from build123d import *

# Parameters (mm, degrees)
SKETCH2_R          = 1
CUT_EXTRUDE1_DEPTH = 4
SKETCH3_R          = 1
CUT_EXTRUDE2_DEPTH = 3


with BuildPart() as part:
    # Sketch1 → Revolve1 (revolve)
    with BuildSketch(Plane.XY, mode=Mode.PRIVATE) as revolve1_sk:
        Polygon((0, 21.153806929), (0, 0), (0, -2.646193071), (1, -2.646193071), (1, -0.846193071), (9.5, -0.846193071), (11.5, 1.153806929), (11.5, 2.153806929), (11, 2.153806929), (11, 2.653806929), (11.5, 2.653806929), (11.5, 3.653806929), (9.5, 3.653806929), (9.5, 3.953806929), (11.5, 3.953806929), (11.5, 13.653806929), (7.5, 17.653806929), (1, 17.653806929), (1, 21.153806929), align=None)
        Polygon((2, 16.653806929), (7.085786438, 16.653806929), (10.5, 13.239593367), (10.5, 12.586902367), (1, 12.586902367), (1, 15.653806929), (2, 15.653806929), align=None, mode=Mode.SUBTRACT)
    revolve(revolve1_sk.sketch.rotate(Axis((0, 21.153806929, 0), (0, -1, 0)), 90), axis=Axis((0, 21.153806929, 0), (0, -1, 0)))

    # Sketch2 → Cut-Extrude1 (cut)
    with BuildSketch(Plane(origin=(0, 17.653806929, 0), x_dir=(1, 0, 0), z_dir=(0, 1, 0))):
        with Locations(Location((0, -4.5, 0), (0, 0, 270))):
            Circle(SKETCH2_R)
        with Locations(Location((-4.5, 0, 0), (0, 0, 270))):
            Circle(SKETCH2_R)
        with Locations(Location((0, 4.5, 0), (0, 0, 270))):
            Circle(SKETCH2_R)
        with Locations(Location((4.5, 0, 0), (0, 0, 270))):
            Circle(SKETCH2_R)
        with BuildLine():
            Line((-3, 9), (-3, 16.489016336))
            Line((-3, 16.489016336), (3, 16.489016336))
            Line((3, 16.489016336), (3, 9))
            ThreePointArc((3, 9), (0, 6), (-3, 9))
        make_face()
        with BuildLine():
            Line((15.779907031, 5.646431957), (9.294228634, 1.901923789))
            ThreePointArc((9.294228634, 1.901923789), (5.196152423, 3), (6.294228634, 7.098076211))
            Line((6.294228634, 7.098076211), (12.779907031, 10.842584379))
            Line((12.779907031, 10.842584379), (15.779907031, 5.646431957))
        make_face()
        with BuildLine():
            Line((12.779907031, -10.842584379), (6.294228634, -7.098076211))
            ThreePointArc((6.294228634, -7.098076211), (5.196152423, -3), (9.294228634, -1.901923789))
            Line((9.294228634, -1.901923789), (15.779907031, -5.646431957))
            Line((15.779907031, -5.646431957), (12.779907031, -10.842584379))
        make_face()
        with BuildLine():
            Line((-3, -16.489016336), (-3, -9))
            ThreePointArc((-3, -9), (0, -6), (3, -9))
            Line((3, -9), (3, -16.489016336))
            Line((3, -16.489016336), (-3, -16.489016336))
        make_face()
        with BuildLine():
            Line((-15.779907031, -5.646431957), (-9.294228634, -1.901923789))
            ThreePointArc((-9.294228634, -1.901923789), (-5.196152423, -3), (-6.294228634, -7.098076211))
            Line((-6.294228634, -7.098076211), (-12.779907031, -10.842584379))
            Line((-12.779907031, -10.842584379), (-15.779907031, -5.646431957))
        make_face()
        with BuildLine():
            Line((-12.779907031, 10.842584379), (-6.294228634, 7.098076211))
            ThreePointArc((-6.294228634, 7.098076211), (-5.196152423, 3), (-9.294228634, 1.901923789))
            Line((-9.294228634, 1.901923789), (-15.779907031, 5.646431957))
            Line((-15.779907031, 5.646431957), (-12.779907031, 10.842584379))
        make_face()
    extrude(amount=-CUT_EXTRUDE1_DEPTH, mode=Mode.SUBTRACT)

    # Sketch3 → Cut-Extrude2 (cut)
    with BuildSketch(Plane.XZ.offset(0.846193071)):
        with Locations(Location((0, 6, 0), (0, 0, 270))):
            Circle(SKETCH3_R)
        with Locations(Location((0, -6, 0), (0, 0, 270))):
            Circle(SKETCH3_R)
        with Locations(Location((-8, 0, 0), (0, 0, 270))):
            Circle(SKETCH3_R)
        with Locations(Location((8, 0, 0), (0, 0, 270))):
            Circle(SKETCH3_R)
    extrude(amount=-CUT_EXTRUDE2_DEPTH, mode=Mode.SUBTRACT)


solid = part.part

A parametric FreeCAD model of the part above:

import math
import FreeCAD as App
import Part
import Sketcher
Q = App.Units.Quantity

doc = App.newDocument("Part")
body = doc.addObject("PartDesign::Body", "Body")

# Sketch on XY plane
sketch1 = body.newObject("Sketcher::SketchObject", "Sketch")
sketch1.AttachmentSupport = (doc.getObject("XY_Plane"), [""])
sketch1.MapMode = "FlatFace"
sketch1.addGeometry([
    Part.LineSegment(App.Vector(0, 21.153807, 0), App.Vector(0, -2.646193, 0)),  # 0
    Part.LineSegment(App.Vector(0, -2.646193, 0), App.Vector(1, -2.646193, 0)),  # 1
    Part.LineSegment(App.Vector(1, -2.646193, 0), App.Vector(1, -0.846193, 0)),  # 2
    Part.LineSegment(App.Vector(1, -0.846193, 0), App.Vector(9.5, -0.846193, 0)),  # 3
    Part.LineSegment(App.Vector(9.5, -0.846193, 0), App.Vector(11.5, 1.153807, 0)),  # 4
    Part.LineSegment(App.Vector(11.5, 1.153807, 0), App.Vector(11.5, 2.153807, 0)),  # 5
    Part.LineSegment(App.Vector(11.5, 2.153807, 0), App.Vector(11, 2.153807, 0)),  # 6
    Part.LineSegment(App.Vector(11, 2.153807, 0), App.Vector(11, 2.653807, 0)),  # 7
    Part.LineSegment(App.Vector(11, 2.653807, 0), App.Vector(11.5, 2.653807, 0)),  # 8
    Part.LineSegment(App.Vector(11.5, 2.653807, 0), App.Vector(11.5, 3.653807, 0)),  # 9
    Part.LineSegment(App.Vector(11.5, 3.653807, 0), App.Vector(9.5, 3.653807, 0)),  # 10
    Part.LineSegment(App.Vector(9.5, 3.653807, 0), App.Vector(9.5, 3.953807, 0)),  # 11
    Part.LineSegment(App.Vector(9.5, 3.953807, 0), App.Vector(11.5, 3.953807, 0)),  # 12
    Part.LineSegment(App.Vector(11.5, 3.953807, 0), App.Vector(11.5, 13.653807, 0)),  # 13
    Part.LineSegment(App.Vector(11.5, 13.653807, 0), App.Vector(7.5, 17.653807, 0)),  # 14
    Part.LineSegment(App.Vector(7.5, 17.653807, 0), App.Vector(1, 17.653807, 0)),  # 15
    Part.LineSegment(App.Vector(1, 17.653807, 0), App.Vector(1, 21.153807, 0)),  # 16
    Part.LineSegment(App.Vector(1, 21.153807, 0), App.Vector(0, 21.153807, 0)),  # 17
    Part.LineSegment(App.Vector(2, 15.653807, 0), App.Vector(2, 16.653807, 0)),  # 18
    Part.LineSegment(App.Vector(2, 16.653807, 0), App.Vector(7.085786, 16.653807, 0)),  # 19
    Part.LineSegment(App.Vector(7.085786, 16.653807, 0), App.Vector(10.5, 13.239593, 0)),  # 20
    Part.LineSegment(App.Vector(10.5, 13.239593, 0), App.Vector(10.5, 12.586902, 0)),  # 21
    Part.LineSegment(App.Vector(10.5, 12.586902, 0), App.Vector(1, 12.586902, 0)),  # 22
    Part.LineSegment(App.Vector(1, 12.586902, 0), App.Vector(1, 15.653807, 0)),  # 23
    Part.LineSegment(App.Vector(1, 15.653807, 0), App.Vector(2, 15.653807, 0)),  # 24
], False)
sketch1.addConstraint([
    Sketcher.Constraint("Coincident", 0, 2, 1, 1),
    Sketcher.Constraint("Coincident", 1, 2, 2, 1),
    Sketcher.Constraint("Coincident", 2, 2, 3, 1),
    Sketcher.Constraint("Coincident", 3, 2, 4, 1),
    Sketcher.Constraint("Coincident", 4, 2, 5, 1),
    Sketcher.Constraint("Coincident", 5, 2, 6, 1),
    Sketcher.Constraint("Coincident", 6, 2, 7, 1),
    Sketcher.Constraint("Coincident", 7, 2, 8, 1),
    Sketcher.Constraint("Coincident", 8, 2, 9, 1),
    Sketcher.Constraint("Coincident", 9, 2, 10, 1),
    Sketcher.Constraint("Coincident", 10, 2, 11, 1),
    Sketcher.Constraint("Coincident", 11, 2, 12, 1),
    Sketcher.Constraint("Coincident", 12, 2, 13, 1),
    Sketcher.Constraint("Coincident", 13, 2, 14, 1),
    Sketcher.Constraint("Coincident", 14, 2, 15, 1),
    Sketcher.Constraint("Coincident", 15, 2, 16, 1),
    Sketcher.Constraint("Coincident", 16, 2, 17, 1),
    Sketcher.Constraint("Coincident", 17, 2, 0, 1),
    Sketcher.Constraint("Coincident", 18, 2, 19, 1),
    Sketcher.Constraint("Coincident", 19, 2, 20, 1),
    Sketcher.Constraint("Coincident", 20, 2, 21, 1),
    Sketcher.Constraint("Coincident", 21, 2, 22, 1),
    Sketcher.Constraint("Coincident", 22, 2, 23, 1),
    Sketcher.Constraint("Coincident", 23, 2, 24, 1),
    Sketcher.Constraint("Coincident", 24, 2, 18, 1),
    Sketcher.Constraint("Vertical", 0),
    Sketcher.Constraint("Horizontal", 1),
    Sketcher.Constraint("Vertical", 2),
    Sketcher.Constraint("Horizontal", 3),
    Sketcher.Constraint("Vertical", 5),
    Sketcher.Constraint("Horizontal", 6),
    Sketcher.Constraint("Vertical", 7),
    Sketcher.Constraint("Horizontal", 8),
    Sketcher.Constraint("Vertical", 9),
    Sketcher.Constraint("Horizontal", 10),
    Sketcher.Constraint("Vertical", 11),
    Sketcher.Constraint("Horizontal", 12),
    Sketcher.Constraint("Vertical", 13),
    Sketcher.Constraint("Horizontal", 15),
    Sketcher.Constraint("Vertical", 16),
    Sketcher.Constraint("Horizontal", 17),
    Sketcher.Constraint("Vertical", 18),
    Sketcher.Constraint("Horizontal", 19),
    Sketcher.Constraint("Vertical", 21),
    Sketcher.Constraint("Horizontal", 22),
    Sketcher.Constraint("Vertical", 23),
    Sketcher.Constraint("Horizontal", 24),
    Sketcher.Constraint("PointOnObject", 0, 2, -2),
    Sketcher.Constraint("Perpendicular", 4, 14),
    Sketcher.Constraint("Parallel", 14, 20),
    Sketcher.Constraint("Vertical", 5, 2, 8, 2),
    Sketcher.Constraint("Vertical", 3, 2, 10, 2),
    Sketcher.Constraint("Vertical", 9, 2, 12, 2),
    Sketcher.Constraint("Vertical", 2, 2, 15, 2),
    Sketcher.Constraint("Vertical", 16, 2, 22, 2),
    Sketcher.Constraint("Equal", 17, 24),
    Sketcher.Constraint("Equal", 24, 5),
    Sketcher.Constraint("Equal", 8, 7),
    Sketcher.Constraint("Equal", 5, 9),
    Sketcher.Constraint("Equal", 9, 18),
    Sketcher.Constraint("DistanceX", 1, 1, 1, 2, 1.0),
    Sketcher.Constraint("DistanceX", 10, 2, 10, 1, 2.0),
    Sketcher.Constraint("Angle", 4, Q("45 deg")),
    Sketcher.Constraint("DistanceX", 3, 1, 3, 2, 8.5),
    Sketcher.Constraint("DistanceX", 6, 2, 6, 1, 0.5),
    Sketcher.Constraint("DistanceX", 15, 2, 15, 1, 6.5),
    Sketcher.Constraint("DistanceX", 22, 2, 22, 1, 9.5),
    Sketcher.Constraint("DistanceY", 0, 2, 0, 1, 23.8),
    Sketcher.Constraint("DistanceY", 2, 1, 2, 2, 1.8),
    Sketcher.Constraint("DistanceY", 11, 1, 11, 2, 0.3),
    Sketcher.Constraint("DistanceY", 13, 1, 13, 2, 9.7),
    Sketcher.Constraint("DistanceY", 18, 2, 15, 2, 1.0),
    Sketcher.Constraint("DistanceY", 21, 2, 21, 1, 0.652691),
    Sketcher.Constraint("DistanceX", 19, 1, 19, 2, 5.085786),
    Sketcher.Constraint("DistanceY", 0, 2, -1, 1, 2.646193),
])
revolution = body.newObject("PartDesign::Revolution", "Revolution")
revolution.Profile = sketch1
revolution.ReferenceAxis = (sketch1, ["V_Axis"])
revolution.Angle = 360

# Sketch on XZ plane
sketch2 = body.newObject("Sketcher::SketchObject", "Sketch001")
sketch2.AttachmentSupport = (doc.getObject("XZ_Plane"), [""])
sketch2.MapMode = "FlatFace"
sketch2.AttachmentOffset = App.Placement(App.Vector(0, 0, -17.653807), App.Rotation())
sketch2.addGeometry([
    Part.Circle(App.Vector(0, 4.5, 0), App.Vector(0, 0, 1), 1),  # 0
    Part.Circle(App.Vector(-4.5, 0, 0), App.Vector(0, 0, 1), 1),  # 1
    Part.Circle(App.Vector(0, -4.5, 0), App.Vector(0, 0, 1), 1),  # 2
    Part.Circle(App.Vector(4.5, 0, 0), App.Vector(0, 0, 1), 1),  # 3
    Part.LineSegment(App.Vector(-3, -16.489016, 0), App.Vector(-3, -9, 0)),  # 4
    Part.ArcOfCircle(Part.Circle(App.Vector(0, -9, 0), App.Vector(0, 0, 1), 3), math.radians(0), math.radians(180)),  # 5
    Part.LineSegment(App.Vector(3, -9, 0), App.Vector(3, -16.489016, 0)),  # 6
    Part.LineSegment(App.Vector(3, -16.489016, 0), App.Vector(-3, -16.489016, 0)),  # 7
    Part.LineSegment(App.Vector(9.294229, -1.901924, 0), App.Vector(15.779907, -5.646432, 0)),  # 8
    Part.LineSegment(App.Vector(15.779907, -5.646432, 0), App.Vector(12.779907, -10.842584, 0)),  # 9
    Part.LineSegment(App.Vector(12.779907, -10.842584, 0), App.Vector(6.294229, -7.098076, 0)),  # 10
    Part.ArcOfCircle(Part.Circle(App.Vector(7.794229, -4.5, 0), App.Vector(0, 0, 1), 3), math.radians(60), math.radians(240)),  # 11
    Part.LineSegment(App.Vector(6.294229, 7.098076, 0), App.Vector(12.779907, 10.842584, 0)),  # 12
    Part.LineSegment(App.Vector(12.779907, 10.842584, 0), App.Vector(15.779907, 5.646432, 0)),  # 13
    Part.LineSegment(App.Vector(15.779907, 5.646432, 0), App.Vector(9.294229, 1.901924, 0)),  # 14
    Part.ArcOfCircle(Part.Circle(App.Vector(7.794229, 4.5, 0), App.Vector(0, 0, 1), 3), math.radians(120), math.radians(300)),  # 15
    Part.LineSegment(App.Vector(-3, 9, 0), App.Vector(-3, 16.489016, 0)),  # 16
    Part.LineSegment(App.Vector(-3, 16.489016, 0), App.Vector(3, 16.489016, 0)),  # 17
    Part.LineSegment(App.Vector(3, 16.489016, 0), App.Vector(3, 9, 0)),  # 18
    Part.ArcOfCircle(Part.Circle(App.Vector(0, 9, 0), App.Vector(0, 0, 1), 3), math.radians(180), math.radians(360)),  # 19
    Part.LineSegment(App.Vector(-9.294229, 1.901924, 0), App.Vector(-15.779907, 5.646432, 0)),  # 20
    Part.LineSegment(App.Vector(-15.779907, 5.646432, 0), App.Vector(-12.779907, 10.842584, 0)),  # 21
    Part.LineSegment(App.Vector(-12.779907, 10.842584, 0), App.Vector(-6.294229, 7.098076, 0)),  # 22
    Part.ArcOfCircle(Part.Circle(App.Vector(-7.794229, 4.5, 0), App.Vector(0, 0, 1), 3), math.radians(-120), math.radians(60)),  # 23
    Part.LineSegment(App.Vector(-6.294229, -7.098076, 0), App.Vector(-12.779907, -10.842584, 0)),  # 24
    Part.LineSegment(App.Vector(-12.779907, -10.842584, 0), App.Vector(-15.779907, -5.646432, 0)),  # 25
    Part.LineSegment(App.Vector(-15.779907, -5.646432, 0), App.Vector(-9.294229, -1.901924, 0)),  # 26
    Part.ArcOfCircle(Part.Circle(App.Vector(-7.794229, -4.5, 0), App.Vector(0, 0, 1), 3), math.radians(-60), math.radians(120)),  # 27
], False)
sketch2.addConstraint([
    Sketcher.Constraint("Tangent", 4, 2, 5, 2),
    Sketcher.Constraint("Tangent", 5, 1, 6, 1),
    Sketcher.Constraint("Coincident", 6, 2, 7, 1),
    Sketcher.Constraint("Coincident", 7, 2, 4, 1),
    Sketcher.Constraint("Coincident", 8, 2, 9, 1),
    Sketcher.Constraint("Coincident", 9, 2, 10, 1),
    Sketcher.Constraint("Tangent", 10, 2, 11, 2),
    Sketcher.Constraint("Tangent", 11, 1, 8, 1),
    Sketcher.Constraint("Coincident", 12, 2, 13, 1),
    Sketcher.Constraint("Coincident", 13, 2, 14, 1),
    Sketcher.Constraint("Tangent", 14, 2, 15, 2),
    Sketcher.Constraint("Tangent", 15, 1, 12, 1),
    Sketcher.Constraint("Coincident", 16, 2, 17, 1),
    Sketcher.Constraint("Coincident", 17, 2, 18, 1),
    Sketcher.Constraint("Tangent", 18, 2, 19, 2),
    Sketcher.Constraint("Tangent", 19, 1, 16, 1),
    Sketcher.Constraint("Coincident", 20, 2, 21, 1),
    Sketcher.Constraint("Coincident", 21, 2, 22, 1),
    Sketcher.Constraint("Tangent", 22, 2, 23, 2),
    Sketcher.Constraint("Tangent", 23, 1, 20, 1),
    Sketcher.Constraint("Coincident", 24, 2, 25, 1),
    Sketcher.Constraint("Coincident", 25, 2, 26, 1),
    Sketcher.Constraint("Tangent", 26, 2, 27, 2),
    Sketcher.Constraint("Tangent", 27, 1, 24, 1),
    Sketcher.Constraint("Vertical", 4),
    Sketcher.Constraint("Vertical", 6),
    Sketcher.Constraint("Horizontal", 7),
    Sketcher.Constraint("Vertical", 16),
    Sketcher.Constraint("Horizontal", 17),
    Sketcher.Constraint("Vertical", 18),
    Sketcher.Constraint("Equal", 0, 1),
    Sketcher.Constraint("Equal", 1, 2),
    Sketcher.Constraint("Equal", 2, 3),
    Sketcher.Constraint("Equal", 5, 11),
    Sketcher.Constraint("Equal", 11, 15),
    Sketcher.Constraint("Equal", 15, 19),
    Sketcher.Constraint("Equal", 19, 23),
    Sketcher.Constraint("Equal", 23, 27),
    Sketcher.Constraint("Symmetric", 0, 3, 2, 3, -1, 1),
    Sketcher.Constraint("Symmetric", 1, 3, 3, 3, -1, 1),
    Sketcher.Constraint("Symmetric", 5, 3, 19, 3, -1, 1),
    Sketcher.Constraint("Symmetric", 11, 3, 23, 3, -1, 1),
    Sketcher.Constraint("Symmetric", 15, 3, 27, 3, -1, 1),
    Sketcher.Constraint("Symmetric", 8, 2, 20, 2, -1, 1),
    Sketcher.Constraint("Symmetric", 9, 2, 21, 2, -1, 1),
    Sketcher.Constraint("Symmetric", 12, 2, 24, 2, -1, 1),
    Sketcher.Constraint("Symmetric", 13, 2, 25, 2, -1, 1),
    Sketcher.Constraint("Symmetric", 15, 3, 23, 3, -2),
    Sketcher.Constraint("Symmetric", 13, 2, 20, 2, -2),
    Sketcher.Constraint("Symmetric", 12, 2, 21, 2, -2),
    Sketcher.Constraint("Symmetric", 7, 2, 16, 2, -1),
    Sketcher.Constraint("PointOnObject", 0, 3, -2),
    Sketcher.Constraint("PointOnObject", 1, 3, -1),
    Sketcher.Constraint("Perpendicular", 8, 9),
    Sketcher.Constraint("Perpendicular", 9, 10),
    Sketcher.Constraint("Horizontal", 2, 3, 11, 3),
    Sketcher.Constraint("Diameter", 0, 2.0),
    Sketcher.Constraint("Radius", 5, 3.0),
    Sketcher.Constraint("Angle", 8, Q("-30 deg")),
    Sketcher.Constraint("DistanceY", 5, 3, -1, 1, 9.0),
    Sketcher.Constraint("DistanceY", 2, 3, 0, 3, 9.0),
    Sketcher.Constraint("DistanceX", 1, 3, 3, 3, 9.0),
    Sketcher.Constraint("DistanceY", 4, 1, 4, 2, 7.489016),
    Sketcher.Constraint("DistanceX", -1, 1, 11, 3, 7.794229),
    Sketcher.Constraint("DistanceY", 8, 2, -1, 1, 5.646432),
])
pocket1 = body.newObject("PartDesign::Pocket", "Pocket")
pocket1.Profile = sketch2
pocket1.Length = 4
pocket1.Reversed = True

# Sketch on XZ plane
sketch3 = body.newObject("Sketcher::SketchObject", "Sketch002")
sketch3.AttachmentSupport = (doc.getObject("XZ_Plane"), [""])
sketch3.MapMode = "FlatFace"
sketch3.AttachmentOffset = App.Placement(App.Vector(0, 0, 0.846193), App.Rotation())
sketch3.addGeometry([
    Part.Circle(App.Vector(0, 6, 0), App.Vector(0, 0, 1), 1),
    Part.Circle(App.Vector(0, -6, 0), App.Vector(0, 0, 1), 1),
    Part.Circle(App.Vector(-8, 0, 0), App.Vector(0, 0, 1), 1),
    Part.Circle(App.Vector(8, 0, 0), App.Vector(0, 0, 1), 1),
], False)
sketch3.addConstraint([
    Sketcher.Constraint("Equal", 0, 1),
    Sketcher.Constraint("Equal", 1, 2),
    Sketcher.Constraint("Equal", 2, 3),
    Sketcher.Constraint("Symmetric", 0, 3, 1, 3, -1, 1),
    Sketcher.Constraint("Symmetric", 2, 3, 3, 3, -1, 1),
    Sketcher.Constraint("PointOnObject", 0, 3, -2),
    Sketcher.Constraint("PointOnObject", 2, 3, -1),
    Sketcher.Constraint("Diameter", 0, 2.0),
    Sketcher.Constraint("DistanceY", -1, 1, 0, 3, 6.0),
    Sketcher.Constraint("DistanceX", 2, 3, -1, 1, 8.0),
])
pocket2 = body.newObject("PartDesign::Pocket", "Pocket001")
pocket2.Profile = sketch3
pocket2.Length = 3

doc.recompute()
